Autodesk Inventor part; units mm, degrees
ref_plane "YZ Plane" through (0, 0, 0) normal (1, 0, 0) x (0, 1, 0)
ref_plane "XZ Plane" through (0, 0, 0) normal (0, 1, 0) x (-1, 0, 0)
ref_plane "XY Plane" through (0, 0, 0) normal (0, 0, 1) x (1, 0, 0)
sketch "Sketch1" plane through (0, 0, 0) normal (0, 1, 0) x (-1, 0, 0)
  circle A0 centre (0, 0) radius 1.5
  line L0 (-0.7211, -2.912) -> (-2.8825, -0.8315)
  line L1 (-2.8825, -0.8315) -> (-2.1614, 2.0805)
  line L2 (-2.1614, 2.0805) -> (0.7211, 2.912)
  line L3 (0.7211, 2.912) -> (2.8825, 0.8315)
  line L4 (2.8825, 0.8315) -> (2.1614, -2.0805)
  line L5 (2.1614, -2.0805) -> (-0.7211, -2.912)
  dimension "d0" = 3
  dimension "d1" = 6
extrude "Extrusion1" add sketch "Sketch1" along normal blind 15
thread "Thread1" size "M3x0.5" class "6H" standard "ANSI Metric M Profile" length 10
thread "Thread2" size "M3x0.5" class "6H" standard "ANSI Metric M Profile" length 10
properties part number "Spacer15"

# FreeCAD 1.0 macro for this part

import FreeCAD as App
import Part
import Sketcher
from FreeCAD import Vector
Q = App.Units.Quantity


def add_polygon(sketch, points):
    """Adds a closed chain of lines whose ends are joined by coincident constraints."""
    first, n = sketch.GeometryCount, len(points)
    for a, b in zip(points, points[1:] + points[:1]):
        sketch.addGeometry(Part.LineSegment(App.Vector(*a, 0), App.Vector(*b, 0)), False)
    for i in range(n):
        sketch.addConstraint(Sketcher.Constraint("Coincident", first + i, 2, first + (i + 1) % n, 1))

doc = App.newDocument("Part")
params = doc.addObject("Spreadsheet::Sheet", "Params")
for row, (alias, value) in enumerate([
    ("sketch1_diameter", "3 mm"),
    ("sketch1_length", "3 mm"),
    ("pad1_length", "15 mm"),
], start=1):
    params.set(f"A{row}", alias)
    params.set(f"B{row}", "=" + value)
    params.setAlias(f"B{row}", alias)

body = doc.addObject("PartDesign::Body", "Body")

# Sketch on XZ plane
sketch1 = body.newObject("Sketcher::SketchObject", "Sketch")
sketch1.AttachmentSupport = (doc.getObject("XZ_Plane"), [""])
sketch1.MapMode = "FlatFace"
add_polygon(sketch1, [(2.9, -0.8), (0.7, -2.9), (-2.2, -2.1), (-2.9, 0.8), (-0.7, 2.9), (2.2, 2.1)])  # lines 0-5
sketch1.addGeometry(Part.Circle(Vector(0, 0, 0), Vector(0, 0, 1), 1.5), False)  # 6
sketch1.addConstraint(Sketcher.Constraint("Coincident", 6, 3, -1, 1))
sketch1.addConstraint(Sketcher.Constraint("Symmetric", 0, 2, 3, 2, -1, 1))
sketch1.addConstraint(Sketcher.Constraint("Symmetric", 1, 2, 4, 2, -1, 1))
sketch1.addConstraint(Sketcher.Constraint("Symmetric", 2, 2, 5, 2, -1, 1))
sketch1.addConstraint(Sketcher.Constraint("Equal", 0, 1))
sketch1.addConstraint(Sketcher.Constraint("Equal", 1, 2))
sketch1.addConstraint(Sketcher.Constraint("Diameter", 6, 3.0))
sketch1.addConstraint(Sketcher.Constraint("Distance", 0, 3.0))
sketch1.addConstraint(Sketcher.Constraint("Angle", 1, Q("163.909 deg")))
sketch1.addConstraint(Sketcher.Constraint("DistanceX", -1, 1, 0, 2, 0.721))
sketch1.addConstraint(Sketcher.Constraint("DistanceY", 0, 2, -1, 1, 2.912))
sketch1.setExpression("Constraints[12]", "Params.sketch1_diameter")
sketch1.setExpression("Constraints[13]", "Params.sketch1_length")
pad1 = body.newObject("PartDesign::Pad", "Pad")
pad1.Profile = sketch1
pad1.setExpression("Length", "Params.pad1_length")
pad1.Reversed = True

doc.recompute()
